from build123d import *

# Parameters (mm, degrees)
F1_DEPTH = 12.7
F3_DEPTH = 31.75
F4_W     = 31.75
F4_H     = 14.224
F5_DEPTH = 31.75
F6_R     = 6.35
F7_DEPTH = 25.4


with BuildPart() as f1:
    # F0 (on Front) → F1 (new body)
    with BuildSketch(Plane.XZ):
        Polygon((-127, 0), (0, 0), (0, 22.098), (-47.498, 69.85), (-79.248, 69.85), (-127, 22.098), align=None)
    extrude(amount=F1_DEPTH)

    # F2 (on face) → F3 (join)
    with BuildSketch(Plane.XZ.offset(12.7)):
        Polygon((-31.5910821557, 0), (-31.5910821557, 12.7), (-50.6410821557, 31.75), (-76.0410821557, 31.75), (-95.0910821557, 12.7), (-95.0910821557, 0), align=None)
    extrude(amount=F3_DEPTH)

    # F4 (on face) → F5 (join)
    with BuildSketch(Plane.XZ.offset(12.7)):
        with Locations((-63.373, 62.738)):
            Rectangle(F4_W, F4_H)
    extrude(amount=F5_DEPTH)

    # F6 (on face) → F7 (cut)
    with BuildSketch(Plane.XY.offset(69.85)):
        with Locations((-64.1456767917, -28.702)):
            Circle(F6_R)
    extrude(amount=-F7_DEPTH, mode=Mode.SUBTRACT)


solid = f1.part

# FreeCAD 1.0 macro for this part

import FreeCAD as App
import Part
import Sketcher
from FreeCAD import Vector
Q = App.Units.Quantity


def add_polygon(sketch, points):
    """Adds a closed chain of lines whose ends are joined by coincident constraints."""
    first, n = sketch.GeometryCount, len(points)
    for a, b in zip(points, points[1:] + points[:1]):
        sketch.addGeometry(Part.LineSegment(App.Vector(*a, 0), App.Vector(*b, 0)), False)
    for i in range(n):
        sketch.addConstraint(Sketcher.Constraint("Coincident", first + i, 2, first + (i + 1) % n, 1))

doc = App.newDocument("Part")
params = doc.addObject("Spreadsheet::Sheet", "Params")
for row, (alias, value) in enumerate([
    ("sketch1_width", "5 in"),
    ("sketch1_width2", "1.25 in"),
    ("sketch1_height", "0.87 in"),
    ("pad1_length", "0.5 in"),
    ("sketch2_width", "1 in"),
    ("sketch2_width2", "2.5 in"),
    ("sketch2_height", "0.5 in"),
    ("pad2_length", "1.25 in"),
    ("sketch3_width", "1.25 in"),
    ("sketch3_height", "0.56 in"),
    ("pad3_length", "1.25 in"),
    ("sketch4_diameter", "0.5 in"),
    ("pocket1_length", "1 in"),
], start=1):
    params.set(f"A{row}", alias)
    params.set(f"B{row}", "=" + value)
    params.setAlias(f"B{row}", alias)

body = doc.addObject("PartDesign::Body", "Body")

sketch1 = body.newObject("Sketcher::SketchObject", "Sketch")
sketch1.AttachmentSupport = (doc.getObject("XZ_Plane"), [""])
sketch1.MapMode = "FlatFace"
add_polygon(sketch1, [(-127, 0), (0, 0), (0, 22.098), (-47.498, 69.85), (-79.248, 69.85), (-127, 22.098)])
sketch1.addConstraint(Sketcher.Constraint("Horizontal", 0))
sketch1.addConstraint(Sketcher.Constraint("Vertical", 1))
sketch1.addConstraint(Sketcher.Constraint("Horizontal", 3))
sketch1.addConstraint(Sketcher.Constraint("Vertical", 5))
sketch1.addConstraint(Sketcher.Constraint("Coincident", 0, 2, -1, 1))
sketch1.addConstraint(Sketcher.Constraint("Horizontal", 1, 2, 4, 2))
sketch1.addConstraint(Sketcher.Constraint("DistanceX", 0, 1, 0, 2, Q("5 in")))
sketch1.addConstraint(Sketcher.Constraint("Angle", 4, Q("-135 deg")))
sketch1.addConstraint(Sketcher.Constraint("DistanceX", 3, 2, 3, 1, Q("1.25 in")))
sketch1.addConstraint(Sketcher.Constraint("DistanceY", 1, 1, 1, 2, Q("0.87 in")))
sketch1.addConstraint(Sketcher.Constraint("DistanceX", 2, 2, -1, 1, Q("1.87 in")))
sketch1.setExpression("Constraints[12]", "Params.sketch1_width")
sketch1.setExpression("Constraints[14]", "Params.sketch1_width2")
sketch1.setExpression("Constraints[15]", "Params.sketch1_height")
pad1 = body.newObject("PartDesign::Pad", "Pad")
pad1.Profile = sketch1
pad1.setExpression("Length", "Params.pad1_length")

sketch2 = body.newObject("Sketcher::SketchObject", "Sketch001")
sketch2.AttachmentSupport = (doc.getObject("XZ_Plane"), [""])
sketch2.MapMode = "FlatFace"
sketch2.AttachmentOffset = App.Placement(Vector(0, 0, 0.5 * 25.4), App.Rotation())
add_polygon(sketch2, [(-31.591082, 0), (-31.591082, 12.7), (-50.641082, 31.75), (-76.041082, 31.75), (-95.091082, 12.7), (-95.091082, 0)])
sketch2.addConstraint(Sketcher.Constraint("Vertical", 0))
sketch2.addConstraint(Sketcher.Constraint("Horizontal", 2))
sketch2.addConstraint(Sketcher.Constraint("Vertical", 4))
sketch2.addConstraint(Sketcher.Constraint("Horizontal", 5))
sketch2.addConstraint(Sketcher.Constraint("PointOnObject", 4, 2, -1))
sketch2.addConstraint(Sketcher.Constraint("Perpendicular", 1, 3))
sketch2.addConstraint(Sketcher.Constraint("Horizontal", 0, 2, 3, 2))
sketch2.addConstraint(Sketcher.Constraint("Equal", 1, 3))
sketch2.addConstraint(Sketcher.Constraint("DistanceX", 2, 2, 2, 1, Q("1 in")))
sketch2.addConstraint(Sketcher.Constraint("DistanceX", 5, 1, 5, 2, Q("2.5 in")))
sketch2.addConstraint(Sketcher.Constraint("DistanceY", 0, 1, 0, 2, Q("0.5 in")))
sketch2.addConstraint(Sketcher.Constraint("DistanceX", 0, 2, -1, 1, Q("31.591082 mm")))
sketch2.setExpression("Constraints[14]", "Params.sketch2_width")
sketch2.setExpression("Constraints[15]", "Params.sketch2_width2")
sketch2.setExpression("Constraints[16]", "Params.sketch2_height")
pad2 = body.newObject("PartDesign::Pad", "Pad001")
pad2.Profile = sketch2
pad2.setExpression("Length", "Params.pad2_length")

sketch3 = body.newObject("Sketcher::SketchObject", "Sketch002")
sketch3.AttachmentSupport = (doc.getObject("XZ_Plane"), [""])
sketch3.MapMode = "FlatFace"
sketch3.AttachmentOffset = App.Placement(Vector(0, 0, 0.5 * 25.4), App.Rotation())
add_polygon(sketch3, [(-79.248, 69.85), (-79.248, 55.626), (-47.498, 55.626), (-47.498, 69.85)])
sketch3.addConstraint(Sketcher.Constraint("Vertical", 0))
sketch3.addConstraint(Sketcher.Constraint("Horizontal", 1))
sketch3.addConstraint(Sketcher.Constraint("Vertical", 2))
sketch3.addConstraint(Sketcher.Constraint("Horizontal", 3))
sketch3.addConstraint(Sketcher.Constraint("DistanceX", 1, 1, 1, 2, Q("1.25 in")))
sketch3.addConstraint(Sketcher.Constraint("DistanceY", 0, 2, 0, 1, Q("0.56 in")))
sketch3.addConstraint(Sketcher.Constraint("DistanceX", 0, 2, -1, 1, Q("3.12 in")))
sketch3.addConstraint(Sketcher.Constraint("DistanceY", -1, 1, 0, 2, Q("2.19 in")))
sketch3.setExpression("Constraints[8]", "Params.sketch3_width")
sketch3.setExpression("Constraints[9]", "Params.sketch3_height")
pad3 = body.newObject("PartDesign::Pad", "Pad002")
pad3.Profile = sketch3
pad3.setExpression("Length", "Params.pad3_length")

sketch4 = body.newObject("Sketcher::SketchObject", "Sketch003")
sketch4.AttachmentSupport = (doc.getObject("XY_Plane"), [""])
sketch4.MapMode = "FlatFace"
sketch4.AttachmentOffset = App.Placement(Vector(0, 0, 2.75 * 25.4), App.Rotation())
sketch4.addGeometry(Part.Circle(Vector(-64.145677, -28.702, 0), Vector(0, 0, 1), 6.35), False)
sketch4.addConstraint(Sketcher.Constraint("Diameter", 0, Q("0.5 in")))
sketch4.addConstraint(Sketcher.Constraint("DistanceY", 0, 3, -1, 1, Q("1.13 in")))
sketch4.addConstraint(Sketcher.Constraint("DistanceX", 0, 3, -1, 1, Q("64.145677 mm")))
sketch4.setExpression("Constraints[0]", "Params.sketch4_diameter")
pocket1 = body.newObject("PartDesign::Pocket", "Pocket")
pocket1.Profile = sketch4
pocket1.setExpression("Length", "Params.pocket1_length")

doc.recompute()
